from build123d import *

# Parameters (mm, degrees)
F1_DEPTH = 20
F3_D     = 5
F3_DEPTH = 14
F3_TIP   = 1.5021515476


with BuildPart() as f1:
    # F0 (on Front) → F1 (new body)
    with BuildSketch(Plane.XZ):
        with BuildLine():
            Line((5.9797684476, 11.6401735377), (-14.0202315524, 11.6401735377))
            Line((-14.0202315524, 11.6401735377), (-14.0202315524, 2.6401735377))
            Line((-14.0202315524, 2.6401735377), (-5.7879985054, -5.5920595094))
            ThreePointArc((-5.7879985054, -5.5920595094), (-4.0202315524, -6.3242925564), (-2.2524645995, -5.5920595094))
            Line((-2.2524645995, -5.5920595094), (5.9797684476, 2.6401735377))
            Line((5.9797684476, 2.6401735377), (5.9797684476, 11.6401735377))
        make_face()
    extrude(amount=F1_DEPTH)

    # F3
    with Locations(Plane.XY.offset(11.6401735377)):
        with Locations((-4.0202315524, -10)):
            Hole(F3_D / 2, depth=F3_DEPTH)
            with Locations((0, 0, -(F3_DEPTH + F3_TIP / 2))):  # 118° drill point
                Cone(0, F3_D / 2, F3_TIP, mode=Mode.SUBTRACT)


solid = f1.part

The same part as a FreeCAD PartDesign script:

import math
import FreeCAD as App
import Part
import Sketcher

V = App.Vector

doc = App.newDocument("Part")
body = doc.addObject("PartDesign::Body", "Body")

# Sketch on XZ plane
sketch1 = body.newObject("Sketcher::SketchObject", "Sketch")
sketch1.AttachmentSupport = (doc.getObject("XZ_Plane"), [""])
sketch1.MapMode = "FlatFace"
sketch1.addGeometry(Part.LineSegment(V(6, 11.6, 0), V(-14, 11.6, 0)), False)
sketch1.addGeometry(Part.LineSegment(V(-14, 11.6, 0), V(-14, 2.6, 0)), False)
sketch1.addGeometry(Part.LineSegment(V(-14, 2.6, 0), V(-5.8, -5.6, 0)), False)
sketch1.addGeometry(Part.ArcOfCircle(Part.Circle(V(-4, -3.8, 0), V(0, 0, 1), 2.5), math.radians(-135), math.radians(-45)), False)
sketch1.addGeometry(Part.LineSegment(V(-2.3, -5.6, 0), V(6, 2.6, 0)), False)
sketch1.addGeometry(Part.LineSegment(V(6, 2.6, 0), V(6, 11.6, 0)), False)
sketch1.addConstraint(Sketcher.Constraint("Coincident", 0, 2, 1, 1))
sketch1.addConstraint(Sketcher.Constraint("Coincident", 1, 2, 2, 1))
sketch1.addConstraint(Sketcher.Constraint("Tangent", 2, 2, 3, 1))
sketch1.addConstraint(Sketcher.Constraint("Tangent", 3, 2, 4, 1))
sketch1.addConstraint(Sketcher.Constraint("Coincident", 4, 2, 5, 1))
sketch1.addConstraint(Sketcher.Constraint("Coincident", 5, 2, 0, 1))
sketch1.addConstraint(Sketcher.Constraint("Horizontal", 0))
sketch1.addConstraint(Sketcher.Constraint("Vertical", 1))
sketch1.addConstraint(Sketcher.Constraint("Vertical", 5))
sketch1.addConstraint(Sketcher.Constraint("Perpendicular", 2, 4))
sketch1.addConstraint(Sketcher.Constraint("Horizontal", 2, 2, 3, 2))
sketch1.addConstraint(Sketcher.Constraint("Horizontal", 1, 2, 4, 2))
sketch1.addConstraint(Sketcher.Constraint("Radius", 3, 2.5))
sketch1.addConstraint(Sketcher.Constraint("DistanceX", 0, 2, 0, 1, 20.0))
sketch1.addConstraint(Sketcher.Constraint("DistanceY", 1, 2, 1, 1, 9.0))
sketch1.addConstraint(Sketcher.Constraint("DistanceX", 2, 2, -1, 1, 5.787999))
sketch1.addConstraint(Sketcher.Constraint("DistanceY", 2, 2, -1, 1, 5.59206))
pad1 = body.newObject("PartDesign::Pad", "Pad")
pad1.Profile = sketch1
pad1.Length = 20

# Sketch on XY plane
sketch2 = body.newObject("Sketcher::SketchObject", "Sketch001")
sketch2.AttachmentSupport = (doc.getObject("XY_Plane"), [""])
sketch2.MapMode = "FlatFace"
sketch2.AttachmentOffset = App.Placement(V(0, 0, 11.640174), App.Rotation())
sketch2.addGeometry(Part.Circle(V(-4, -10, 0), V(0, 0, 1), 2.5), False)
sketch2.addConstraint(Sketcher.Constraint("Diameter", 0, 5.0))
sketch2.addConstraint(Sketcher.Constraint("DistanceY", 0, 3, -1, 1, 10.0))
sketch2.addConstraint(Sketcher.Constraint("DistanceX", 0, 3, -1, 1, 4.020232))
doc.recompute()
hole = body.newObject("PartDesign::Hole", "Hole")
hole.Profile = sketch2
hole.ThreadType = "None"
hole.Diameter = 5
hole.DepthType = "Dimension"
hole.Depth = 14
hole.DrillPoint = "Angled"
hole.DrillPointAngle = 118

doc.recompute()
